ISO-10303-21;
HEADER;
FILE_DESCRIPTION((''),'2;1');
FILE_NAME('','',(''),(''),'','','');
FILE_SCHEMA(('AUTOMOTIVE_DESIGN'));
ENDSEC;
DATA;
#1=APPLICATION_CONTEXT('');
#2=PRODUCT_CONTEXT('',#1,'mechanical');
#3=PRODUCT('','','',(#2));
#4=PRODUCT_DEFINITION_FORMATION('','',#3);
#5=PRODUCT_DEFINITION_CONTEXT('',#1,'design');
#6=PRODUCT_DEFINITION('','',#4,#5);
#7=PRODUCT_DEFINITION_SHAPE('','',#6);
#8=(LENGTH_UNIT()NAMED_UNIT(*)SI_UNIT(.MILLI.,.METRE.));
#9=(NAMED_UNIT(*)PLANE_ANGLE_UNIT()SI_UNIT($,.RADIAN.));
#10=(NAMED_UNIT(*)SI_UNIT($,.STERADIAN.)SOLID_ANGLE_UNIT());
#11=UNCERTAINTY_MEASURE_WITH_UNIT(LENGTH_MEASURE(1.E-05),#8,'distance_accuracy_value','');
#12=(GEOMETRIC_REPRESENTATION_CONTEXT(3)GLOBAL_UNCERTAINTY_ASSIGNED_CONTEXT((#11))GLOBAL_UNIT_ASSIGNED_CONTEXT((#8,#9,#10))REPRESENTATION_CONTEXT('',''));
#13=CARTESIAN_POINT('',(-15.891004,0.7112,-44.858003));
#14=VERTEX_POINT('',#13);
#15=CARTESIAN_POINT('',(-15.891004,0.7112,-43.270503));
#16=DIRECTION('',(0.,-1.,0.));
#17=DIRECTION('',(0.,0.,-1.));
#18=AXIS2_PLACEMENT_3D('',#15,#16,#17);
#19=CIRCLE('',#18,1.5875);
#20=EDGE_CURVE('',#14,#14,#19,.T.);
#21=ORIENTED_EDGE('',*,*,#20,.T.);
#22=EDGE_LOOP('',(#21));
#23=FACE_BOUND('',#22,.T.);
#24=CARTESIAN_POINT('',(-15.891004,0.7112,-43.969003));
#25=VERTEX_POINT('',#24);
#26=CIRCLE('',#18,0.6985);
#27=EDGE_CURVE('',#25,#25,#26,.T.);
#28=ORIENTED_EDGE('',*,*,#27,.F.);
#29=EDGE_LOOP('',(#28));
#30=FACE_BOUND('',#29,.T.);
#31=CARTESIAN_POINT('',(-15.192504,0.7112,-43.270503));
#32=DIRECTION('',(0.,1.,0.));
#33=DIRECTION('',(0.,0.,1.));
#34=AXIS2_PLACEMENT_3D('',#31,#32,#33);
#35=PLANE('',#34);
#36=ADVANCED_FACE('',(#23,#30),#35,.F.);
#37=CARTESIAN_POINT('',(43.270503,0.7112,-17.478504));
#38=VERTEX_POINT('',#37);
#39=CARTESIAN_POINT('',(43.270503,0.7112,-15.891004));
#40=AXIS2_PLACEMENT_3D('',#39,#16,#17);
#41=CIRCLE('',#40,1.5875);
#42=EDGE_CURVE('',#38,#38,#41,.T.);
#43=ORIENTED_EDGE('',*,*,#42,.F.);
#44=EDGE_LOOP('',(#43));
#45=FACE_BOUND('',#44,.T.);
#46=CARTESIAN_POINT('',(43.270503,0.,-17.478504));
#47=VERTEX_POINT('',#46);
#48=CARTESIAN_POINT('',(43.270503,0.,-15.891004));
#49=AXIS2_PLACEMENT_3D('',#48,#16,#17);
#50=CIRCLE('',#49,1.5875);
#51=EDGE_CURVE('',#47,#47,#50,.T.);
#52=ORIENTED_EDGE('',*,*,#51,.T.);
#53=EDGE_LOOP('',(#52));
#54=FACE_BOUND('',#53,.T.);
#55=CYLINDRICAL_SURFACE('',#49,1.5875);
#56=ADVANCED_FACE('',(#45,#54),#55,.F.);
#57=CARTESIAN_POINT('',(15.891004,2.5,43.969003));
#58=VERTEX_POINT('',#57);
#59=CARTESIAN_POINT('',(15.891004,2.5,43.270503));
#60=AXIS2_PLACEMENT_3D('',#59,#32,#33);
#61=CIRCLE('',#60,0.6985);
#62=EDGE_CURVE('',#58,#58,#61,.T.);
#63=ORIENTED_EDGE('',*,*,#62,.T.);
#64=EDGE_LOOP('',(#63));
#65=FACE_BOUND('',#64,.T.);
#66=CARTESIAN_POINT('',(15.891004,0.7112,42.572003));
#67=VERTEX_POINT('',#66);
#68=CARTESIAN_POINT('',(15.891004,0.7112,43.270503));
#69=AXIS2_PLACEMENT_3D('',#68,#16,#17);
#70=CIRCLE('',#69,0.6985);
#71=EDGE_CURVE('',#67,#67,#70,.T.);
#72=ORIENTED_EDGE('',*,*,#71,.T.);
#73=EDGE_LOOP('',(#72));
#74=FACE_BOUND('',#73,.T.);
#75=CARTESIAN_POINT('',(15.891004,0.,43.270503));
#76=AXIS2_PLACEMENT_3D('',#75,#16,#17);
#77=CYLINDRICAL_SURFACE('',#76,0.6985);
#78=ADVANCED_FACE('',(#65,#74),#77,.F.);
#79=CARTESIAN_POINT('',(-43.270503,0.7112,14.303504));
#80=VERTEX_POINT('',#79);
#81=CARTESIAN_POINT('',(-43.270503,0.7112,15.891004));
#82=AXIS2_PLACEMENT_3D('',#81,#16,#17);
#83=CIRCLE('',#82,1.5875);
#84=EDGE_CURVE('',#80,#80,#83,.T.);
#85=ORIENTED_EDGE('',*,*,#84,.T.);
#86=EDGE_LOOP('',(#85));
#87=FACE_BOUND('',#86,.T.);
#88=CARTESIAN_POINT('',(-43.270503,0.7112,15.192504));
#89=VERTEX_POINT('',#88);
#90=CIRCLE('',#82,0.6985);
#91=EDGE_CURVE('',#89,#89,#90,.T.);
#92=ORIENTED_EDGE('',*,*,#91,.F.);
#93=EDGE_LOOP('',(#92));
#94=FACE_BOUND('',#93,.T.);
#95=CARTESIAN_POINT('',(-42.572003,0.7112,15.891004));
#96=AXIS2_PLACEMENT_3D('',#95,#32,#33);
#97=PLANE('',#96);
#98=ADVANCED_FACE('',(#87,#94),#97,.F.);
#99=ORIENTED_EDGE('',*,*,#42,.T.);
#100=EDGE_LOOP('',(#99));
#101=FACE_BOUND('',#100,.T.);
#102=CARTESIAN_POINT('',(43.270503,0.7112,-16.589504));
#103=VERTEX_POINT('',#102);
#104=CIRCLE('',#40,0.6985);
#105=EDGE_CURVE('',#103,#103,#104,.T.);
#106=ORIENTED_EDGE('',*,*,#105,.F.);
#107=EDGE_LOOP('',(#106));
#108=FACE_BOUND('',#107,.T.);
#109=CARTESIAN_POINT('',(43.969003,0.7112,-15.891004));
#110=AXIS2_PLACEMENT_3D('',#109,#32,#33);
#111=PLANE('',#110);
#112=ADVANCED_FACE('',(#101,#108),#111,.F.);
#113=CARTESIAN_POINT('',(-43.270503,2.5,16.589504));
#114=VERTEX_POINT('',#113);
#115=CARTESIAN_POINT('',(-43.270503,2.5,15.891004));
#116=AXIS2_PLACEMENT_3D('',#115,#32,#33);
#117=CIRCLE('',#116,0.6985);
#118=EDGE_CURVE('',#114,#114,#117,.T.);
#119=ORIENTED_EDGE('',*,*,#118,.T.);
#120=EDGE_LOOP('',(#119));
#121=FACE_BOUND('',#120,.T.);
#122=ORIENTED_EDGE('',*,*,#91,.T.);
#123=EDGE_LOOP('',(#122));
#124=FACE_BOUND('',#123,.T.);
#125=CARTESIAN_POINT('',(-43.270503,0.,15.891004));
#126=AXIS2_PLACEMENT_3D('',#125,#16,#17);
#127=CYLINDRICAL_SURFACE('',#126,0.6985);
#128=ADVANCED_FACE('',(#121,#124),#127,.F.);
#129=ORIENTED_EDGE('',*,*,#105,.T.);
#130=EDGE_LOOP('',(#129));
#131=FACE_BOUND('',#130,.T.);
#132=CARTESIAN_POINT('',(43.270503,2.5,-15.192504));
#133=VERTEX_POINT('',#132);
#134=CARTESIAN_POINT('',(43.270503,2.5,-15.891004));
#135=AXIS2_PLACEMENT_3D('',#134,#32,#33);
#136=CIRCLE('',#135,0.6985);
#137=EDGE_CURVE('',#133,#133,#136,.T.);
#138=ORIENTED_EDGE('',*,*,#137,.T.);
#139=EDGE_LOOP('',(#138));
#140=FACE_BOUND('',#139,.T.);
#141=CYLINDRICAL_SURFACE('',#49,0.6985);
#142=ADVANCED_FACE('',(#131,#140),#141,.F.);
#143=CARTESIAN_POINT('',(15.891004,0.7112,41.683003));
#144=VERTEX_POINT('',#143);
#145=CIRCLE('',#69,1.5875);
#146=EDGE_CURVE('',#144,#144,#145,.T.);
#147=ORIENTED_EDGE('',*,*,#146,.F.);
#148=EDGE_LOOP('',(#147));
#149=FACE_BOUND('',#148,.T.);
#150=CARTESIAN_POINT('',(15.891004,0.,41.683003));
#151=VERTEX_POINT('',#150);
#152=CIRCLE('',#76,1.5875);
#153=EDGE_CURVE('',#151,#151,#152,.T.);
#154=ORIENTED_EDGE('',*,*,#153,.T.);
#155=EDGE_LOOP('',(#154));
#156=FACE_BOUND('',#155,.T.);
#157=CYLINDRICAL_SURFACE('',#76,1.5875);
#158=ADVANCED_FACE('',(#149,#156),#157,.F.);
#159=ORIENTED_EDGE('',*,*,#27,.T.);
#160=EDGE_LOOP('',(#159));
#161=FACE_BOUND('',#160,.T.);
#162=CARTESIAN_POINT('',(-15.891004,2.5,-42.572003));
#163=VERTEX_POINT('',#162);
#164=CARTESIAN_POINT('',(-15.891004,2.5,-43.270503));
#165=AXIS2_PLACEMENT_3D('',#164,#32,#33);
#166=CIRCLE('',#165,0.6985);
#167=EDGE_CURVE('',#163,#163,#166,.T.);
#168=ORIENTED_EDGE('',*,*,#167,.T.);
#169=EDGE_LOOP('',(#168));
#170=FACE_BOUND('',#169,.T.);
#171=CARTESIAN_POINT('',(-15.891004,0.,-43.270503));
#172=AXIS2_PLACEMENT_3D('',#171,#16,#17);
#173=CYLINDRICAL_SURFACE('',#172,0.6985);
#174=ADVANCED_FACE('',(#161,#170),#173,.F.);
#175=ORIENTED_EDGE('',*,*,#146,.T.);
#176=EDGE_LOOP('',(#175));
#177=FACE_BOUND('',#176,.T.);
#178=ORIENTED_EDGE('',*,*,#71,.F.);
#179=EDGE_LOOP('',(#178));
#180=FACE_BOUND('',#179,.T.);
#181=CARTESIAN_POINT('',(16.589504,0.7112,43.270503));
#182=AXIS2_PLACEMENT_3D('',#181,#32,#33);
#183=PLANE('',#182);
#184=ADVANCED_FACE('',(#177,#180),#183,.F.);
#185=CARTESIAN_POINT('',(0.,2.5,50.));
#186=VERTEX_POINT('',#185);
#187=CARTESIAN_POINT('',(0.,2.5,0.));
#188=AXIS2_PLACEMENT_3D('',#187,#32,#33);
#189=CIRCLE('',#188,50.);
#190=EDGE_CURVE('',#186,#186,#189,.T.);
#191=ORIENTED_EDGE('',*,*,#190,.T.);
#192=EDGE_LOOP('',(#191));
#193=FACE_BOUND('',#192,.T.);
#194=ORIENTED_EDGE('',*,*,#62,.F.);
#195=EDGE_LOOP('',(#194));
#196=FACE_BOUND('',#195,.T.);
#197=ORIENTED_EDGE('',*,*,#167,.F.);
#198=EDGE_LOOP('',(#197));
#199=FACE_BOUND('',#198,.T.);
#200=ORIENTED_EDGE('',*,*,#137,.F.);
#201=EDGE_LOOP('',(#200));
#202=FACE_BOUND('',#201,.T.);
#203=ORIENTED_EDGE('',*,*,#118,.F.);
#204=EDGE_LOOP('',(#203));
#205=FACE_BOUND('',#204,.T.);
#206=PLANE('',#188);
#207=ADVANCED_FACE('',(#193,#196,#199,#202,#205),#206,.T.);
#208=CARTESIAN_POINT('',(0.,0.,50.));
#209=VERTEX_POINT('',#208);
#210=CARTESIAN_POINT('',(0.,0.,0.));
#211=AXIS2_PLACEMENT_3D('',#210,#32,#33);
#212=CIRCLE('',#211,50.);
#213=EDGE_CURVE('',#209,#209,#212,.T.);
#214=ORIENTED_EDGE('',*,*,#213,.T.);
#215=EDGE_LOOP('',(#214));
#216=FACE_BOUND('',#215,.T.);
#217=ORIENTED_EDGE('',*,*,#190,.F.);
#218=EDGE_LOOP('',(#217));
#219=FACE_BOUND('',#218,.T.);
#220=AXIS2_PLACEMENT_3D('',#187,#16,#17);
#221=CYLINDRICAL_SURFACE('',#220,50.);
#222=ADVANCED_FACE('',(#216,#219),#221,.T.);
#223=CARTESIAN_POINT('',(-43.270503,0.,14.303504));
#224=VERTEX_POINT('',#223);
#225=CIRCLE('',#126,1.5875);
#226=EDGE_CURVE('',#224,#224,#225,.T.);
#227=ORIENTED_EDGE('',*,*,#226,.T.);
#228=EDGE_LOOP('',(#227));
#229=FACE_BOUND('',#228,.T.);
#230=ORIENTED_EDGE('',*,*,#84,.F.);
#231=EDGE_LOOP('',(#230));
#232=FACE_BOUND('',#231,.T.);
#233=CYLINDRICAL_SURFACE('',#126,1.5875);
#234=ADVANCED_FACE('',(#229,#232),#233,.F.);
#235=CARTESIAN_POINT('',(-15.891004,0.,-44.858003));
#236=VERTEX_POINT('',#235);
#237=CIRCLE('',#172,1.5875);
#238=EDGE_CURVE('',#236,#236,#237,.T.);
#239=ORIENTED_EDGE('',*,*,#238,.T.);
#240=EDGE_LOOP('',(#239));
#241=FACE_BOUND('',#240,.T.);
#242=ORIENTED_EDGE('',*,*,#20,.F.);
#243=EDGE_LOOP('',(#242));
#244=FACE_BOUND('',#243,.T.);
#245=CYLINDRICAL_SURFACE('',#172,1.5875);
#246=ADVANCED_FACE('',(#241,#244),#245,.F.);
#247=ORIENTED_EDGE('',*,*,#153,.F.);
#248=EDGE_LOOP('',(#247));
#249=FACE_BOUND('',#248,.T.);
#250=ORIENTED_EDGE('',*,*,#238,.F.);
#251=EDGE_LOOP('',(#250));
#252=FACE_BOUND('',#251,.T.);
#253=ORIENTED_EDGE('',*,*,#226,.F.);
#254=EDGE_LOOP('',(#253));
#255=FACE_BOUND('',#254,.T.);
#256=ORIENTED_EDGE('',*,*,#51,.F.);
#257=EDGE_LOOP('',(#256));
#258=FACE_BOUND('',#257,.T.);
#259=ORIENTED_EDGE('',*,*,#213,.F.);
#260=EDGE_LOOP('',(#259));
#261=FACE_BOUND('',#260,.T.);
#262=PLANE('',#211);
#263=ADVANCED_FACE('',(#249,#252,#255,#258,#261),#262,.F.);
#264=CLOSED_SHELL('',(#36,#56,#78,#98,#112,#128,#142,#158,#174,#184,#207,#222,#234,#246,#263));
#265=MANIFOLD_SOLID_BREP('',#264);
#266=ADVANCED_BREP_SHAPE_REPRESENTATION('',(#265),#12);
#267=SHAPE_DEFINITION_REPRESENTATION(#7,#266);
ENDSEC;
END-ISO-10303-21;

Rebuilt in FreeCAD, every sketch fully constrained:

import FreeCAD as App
import Part
import Sketcher
Q = App.Units.Quantity

doc = App.newDocument("Part")
body = doc.addObject("PartDesign::Body", "Body")

sketch1 = body.newObject("Sketcher::SketchObject", "Sketch")
sketch1.AttachmentSupport = (doc.getObject("XZ_Plane"), [""])
sketch1.MapMode = "FlatFace"
sketch1.addGeometry(Part.Circle(App.Vector(0, 0, 0), App.Vector(0, 0, 1), 50), False)
sketch1.addConstraint(Sketcher.Constraint("Coincident", 0, 3, -1, 1))
sketch1.addConstraint(Sketcher.Constraint("Diameter", 0, Q("100 mm")))
pad1 = body.newObject("PartDesign::Pad", "Pad")
pad1.Profile = sketch1
pad1.Length = 2.5
pad1.Reversed = True

sketch2 = body.newObject("Sketcher::SketchObject", "Sketch001")
sketch2.AttachmentSupport = (doc.getObject("XZ_Plane"), [""])
sketch2.MapMode = "FlatFace"
sketch2.addGeometry(Part.Circle(App.Vector(-15.9, -43.3, 0), App.Vector(0, 0, 1), 0.7), False)
sketch2.addGeometry(Part.Circle(App.Vector(-43.3, 15.9, 0), App.Vector(0, 0, 1), 0.7), False)
sketch2.addGeometry(Part.Circle(App.Vector(15.9, 43.3, 0), App.Vector(0, 0, 1), 0.7), False)
sketch2.addGeometry(Part.Circle(App.Vector(43.3, -15.9, 0), App.Vector(0, 0, 1), 0.7), False)
sketch2.addConstraint(Sketcher.Constraint("Equal", 0, 1))
sketch2.addConstraint(Sketcher.Constraint("Equal", 1, 2))
sketch2.addConstraint(Sketcher.Constraint("Equal", 2, 3))
sketch2.addConstraint(Sketcher.Constraint("Symmetric", 0, 3, 2, 3, -1, 1))
sketch2.addConstraint(Sketcher.Constraint("Symmetric", 1, 3, 3, 3, -1, 1))
sketch2.addConstraint(Sketcher.Constraint("Diameter", 0, Q("1.397 mm")))
sketch2.addConstraint(Sketcher.Constraint("DistanceX", 1, 3, 0, 3, Q("27.3795 mm")))
sketch2.addConstraint(Sketcher.Constraint("DistanceY", 1, 3, 2, 3, Q("27.3795 mm")))
sketch2.addConstraint(Sketcher.Constraint("DistanceX", 0, 3, -1, 1, Q("15.891004 mm")))
sketch2.addConstraint(Sketcher.Constraint("DistanceY", 0, 3, -1, 1, Q("43.270503 mm")))
doc.recompute()
hole = body.newObject("PartDesign::Hole", "Hole")
hole.Profile = sketch2
hole.ThreadType = "None"
hole.Diameter = 1.397
hole.DepthType = "Dimension"
hole.Depth = 7.5
hole.DrillPoint = "Angled"
hole.DrillPointAngle = 118
hole.HoleCutType = "Counterbore"
hole.HoleCutDiameter = 3.175
hole.HoleCutDepth = 0.7112

doc.recompute()
